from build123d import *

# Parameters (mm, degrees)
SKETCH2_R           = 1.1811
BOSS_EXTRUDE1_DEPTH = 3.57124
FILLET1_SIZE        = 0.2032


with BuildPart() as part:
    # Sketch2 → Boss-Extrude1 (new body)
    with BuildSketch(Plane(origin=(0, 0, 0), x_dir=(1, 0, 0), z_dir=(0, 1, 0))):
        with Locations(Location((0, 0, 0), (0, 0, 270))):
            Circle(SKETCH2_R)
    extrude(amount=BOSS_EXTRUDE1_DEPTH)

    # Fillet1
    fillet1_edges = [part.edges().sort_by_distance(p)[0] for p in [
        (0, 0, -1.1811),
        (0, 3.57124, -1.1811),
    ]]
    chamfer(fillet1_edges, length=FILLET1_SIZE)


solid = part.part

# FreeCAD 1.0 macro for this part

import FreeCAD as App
import Part
import Sketcher
Q = App.Units.Quantity


def edges_at(feature, points):
    """Names of the edges that pass closest to the given points."""
    edges = feature.Shape.Edges
    near = lambda p: min(range(len(edges)), key=lambda i: edges[i].distToShape(Part.Vertex(*p))[0])
    return sorted({f"Edge{near(p) + 1}" for p in points})

doc = App.newDocument("Part")
body = doc.addObject("PartDesign::Body", "Body")

sketch1 = body.newObject("Sketcher::SketchObject", "Sketch")
sketch1.AttachmentSupport = (doc.getObject("XZ_Plane"), [""])
sketch1.MapMode = "FlatFace"
sketch1.addGeometry(Part.Circle(App.Vector(0, 0, 0), App.Vector(0, 0, 1), 1.2), False)
sketch1.addConstraint([
    Sketcher.Constraint("Coincident", 0, 3, -1, 1),
    Sketcher.Constraint("Diameter", 0, Q("0.093 in")),
])
pad1 = body.newObject("PartDesign::Pad", "Pad")
pad1.Profile = sketch1
pad1.Length = Q("0.1406 in")
pad1.Reversed = True
doc.recompute()

chamfer = body.newObject("PartDesign::Chamfer", "Chamfer")
chamfer.Base = (pad1, edges_at(pad1, [(0, 0, -1.181), (0, 3.571, -1.181)]))
chamfer.Size = Q("0.008 in")

doc.recompute()
